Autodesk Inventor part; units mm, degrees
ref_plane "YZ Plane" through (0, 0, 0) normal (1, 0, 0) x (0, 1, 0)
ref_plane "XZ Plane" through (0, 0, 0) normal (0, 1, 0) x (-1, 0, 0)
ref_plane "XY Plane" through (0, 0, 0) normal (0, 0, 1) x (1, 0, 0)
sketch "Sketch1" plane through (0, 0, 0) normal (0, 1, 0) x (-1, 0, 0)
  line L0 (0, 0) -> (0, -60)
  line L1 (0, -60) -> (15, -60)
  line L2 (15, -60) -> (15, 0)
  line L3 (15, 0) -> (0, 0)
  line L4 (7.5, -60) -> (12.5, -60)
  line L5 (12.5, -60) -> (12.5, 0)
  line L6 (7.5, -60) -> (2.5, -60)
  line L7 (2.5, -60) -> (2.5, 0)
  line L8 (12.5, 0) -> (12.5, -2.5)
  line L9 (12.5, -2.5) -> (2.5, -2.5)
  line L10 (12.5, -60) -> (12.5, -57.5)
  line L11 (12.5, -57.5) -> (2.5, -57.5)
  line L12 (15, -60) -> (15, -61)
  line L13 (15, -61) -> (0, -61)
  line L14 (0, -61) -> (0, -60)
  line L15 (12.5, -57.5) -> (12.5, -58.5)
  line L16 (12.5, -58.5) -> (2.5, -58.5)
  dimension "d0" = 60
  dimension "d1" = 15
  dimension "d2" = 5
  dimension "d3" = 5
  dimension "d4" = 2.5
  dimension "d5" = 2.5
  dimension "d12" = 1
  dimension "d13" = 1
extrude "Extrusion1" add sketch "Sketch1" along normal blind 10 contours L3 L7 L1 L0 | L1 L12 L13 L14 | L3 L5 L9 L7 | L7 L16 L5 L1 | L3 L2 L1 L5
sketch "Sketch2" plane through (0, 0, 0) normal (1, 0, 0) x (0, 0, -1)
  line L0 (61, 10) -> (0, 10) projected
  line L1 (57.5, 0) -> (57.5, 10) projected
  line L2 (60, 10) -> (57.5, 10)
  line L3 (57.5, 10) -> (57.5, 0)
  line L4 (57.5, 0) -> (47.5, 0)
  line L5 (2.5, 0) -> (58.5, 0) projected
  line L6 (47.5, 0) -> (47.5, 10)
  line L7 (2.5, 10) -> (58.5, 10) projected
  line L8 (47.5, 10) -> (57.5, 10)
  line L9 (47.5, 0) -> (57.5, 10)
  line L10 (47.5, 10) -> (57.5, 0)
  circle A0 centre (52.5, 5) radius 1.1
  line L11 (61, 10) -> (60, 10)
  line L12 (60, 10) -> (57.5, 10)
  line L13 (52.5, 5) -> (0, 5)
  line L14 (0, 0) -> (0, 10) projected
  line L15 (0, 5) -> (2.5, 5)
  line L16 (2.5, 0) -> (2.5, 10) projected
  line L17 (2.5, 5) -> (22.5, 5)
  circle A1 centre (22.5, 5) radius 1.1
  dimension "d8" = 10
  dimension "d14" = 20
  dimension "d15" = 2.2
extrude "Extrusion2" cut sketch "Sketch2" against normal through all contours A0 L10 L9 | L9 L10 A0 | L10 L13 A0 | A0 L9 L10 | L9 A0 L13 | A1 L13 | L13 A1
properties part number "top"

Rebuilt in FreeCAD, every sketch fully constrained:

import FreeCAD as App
import Part
import Sketcher

V = App.Vector

doc = App.newDocument("Part")
body = doc.addObject("PartDesign::Body", "Body")

# Sketch on XZ plane
sketch1 = body.newObject("Sketcher::SketchObject", "Sketch")
sketch1.AttachmentSupport = (doc.getObject("XZ_Plane"), [""])
sketch1.MapMode = "FlatFace"
sketch1.addGeometry([
    Part.LineSegment(V(0, 0, 0), V(0, -61, 0)),  # 0
    Part.LineSegment(V(0, -61, 0), V(-15, -61, 0)),  # 1
    Part.LineSegment(V(-15, -61, 0), V(-15, 0, 0)),  # 2
    Part.LineSegment(V(-15, 0, 0), V(0, 0, 0)),  # 3
    Part.LineSegment(V(-2.5, -2.5, 0), V(-12.5, -2.5, 0)),  # 4
    Part.LineSegment(V(-12.5, -2.5, 0), V(-12.5, -58.5, 0)),  # 5
    Part.LineSegment(V(-12.5, -58.5, 0), V(-2.5, -58.5, 0)),  # 6
    Part.LineSegment(V(-2.5, -58.5, 0), V(-2.5, -2.5, 0)),  # 7
], False)
sketch1.addConstraint([
    Sketcher.Constraint("Coincident", 0, 2, 1, 1),
    Sketcher.Constraint("Coincident", 1, 2, 2, 1),
    Sketcher.Constraint("Coincident", 2, 2, 3, 1),
    Sketcher.Constraint("Coincident", 3, 2, 0, 1),
    Sketcher.Constraint("Coincident", 4, 2, 5, 1),
    Sketcher.Constraint("Coincident", 5, 2, 6, 1),
    Sketcher.Constraint("Coincident", 6, 2, 7, 1),
    Sketcher.Constraint("Coincident", 7, 2, 4, 1),
    Sketcher.Constraint("Vertical", 0),
    Sketcher.Constraint("Horizontal", 1),
    Sketcher.Constraint("Vertical", 2),
    Sketcher.Constraint("Horizontal", 3),
    Sketcher.Constraint("Horizontal", 4),
    Sketcher.Constraint("Vertical", 5),
    Sketcher.Constraint("Horizontal", 6),
    Sketcher.Constraint("Vertical", 7),
    Sketcher.Constraint("Coincident", 3, 2, -1, 1),
    Sketcher.Constraint("DistanceX", 1, 2, 1, 1, 15.0),
    Sketcher.Constraint("DistanceY", 4, 2, -1, 1, 2.5),
    Sketcher.Constraint("DistanceX", 6, 2, -1, 1, 2.5),
    Sketcher.Constraint("DistanceX", 2, 2, 4, 2, 2.5),
    Sketcher.Constraint("DistanceY", 1, 2, 5, 2, 2.5),
    Sketcher.Constraint("DistanceY", 0, 2, 0, 1, 61.0),
])
pad1 = body.newObject("PartDesign::Pad", "Pad")
pad1.Profile = sketch1
pad1.Length = 10
pad1.Reversed = True

# Sketch on YZ plane
sketch2 = body.newObject("Sketcher::SketchObject", "Sketch001")
sketch2.AttachmentSupport = (doc.getObject("YZ_Plane"), [""])
sketch2.MapMode = "FlatFace"
sketch2.addGeometry([
    Part.Circle(V(5, -52.5, 0), V(0, 0, 1), 1.1),
    Part.Circle(V(5, -22.5, 0), V(0, 0, 1), 1.1),
], False)
sketch2.addConstraint([
    Sketcher.Constraint("Equal", 0, 1),
    Sketcher.Constraint("Vertical", 0, 3, 1, 3),
    Sketcher.Constraint("Diameter", 0, 2.2),
    Sketcher.Constraint("DistanceX", -1, 1, 0, 3, 5.0),
    Sketcher.Constraint("DistanceY", 0, 3, 1, 3, 30.0),
    Sketcher.Constraint("DistanceY", 0, 3, -1, 1, 52.5),
])
pocket1 = body.newObject("PartDesign::Pocket", "Pocket")
pocket1.Profile = sketch2
pocket1.Type = "ThroughAll"

doc.recompute()
